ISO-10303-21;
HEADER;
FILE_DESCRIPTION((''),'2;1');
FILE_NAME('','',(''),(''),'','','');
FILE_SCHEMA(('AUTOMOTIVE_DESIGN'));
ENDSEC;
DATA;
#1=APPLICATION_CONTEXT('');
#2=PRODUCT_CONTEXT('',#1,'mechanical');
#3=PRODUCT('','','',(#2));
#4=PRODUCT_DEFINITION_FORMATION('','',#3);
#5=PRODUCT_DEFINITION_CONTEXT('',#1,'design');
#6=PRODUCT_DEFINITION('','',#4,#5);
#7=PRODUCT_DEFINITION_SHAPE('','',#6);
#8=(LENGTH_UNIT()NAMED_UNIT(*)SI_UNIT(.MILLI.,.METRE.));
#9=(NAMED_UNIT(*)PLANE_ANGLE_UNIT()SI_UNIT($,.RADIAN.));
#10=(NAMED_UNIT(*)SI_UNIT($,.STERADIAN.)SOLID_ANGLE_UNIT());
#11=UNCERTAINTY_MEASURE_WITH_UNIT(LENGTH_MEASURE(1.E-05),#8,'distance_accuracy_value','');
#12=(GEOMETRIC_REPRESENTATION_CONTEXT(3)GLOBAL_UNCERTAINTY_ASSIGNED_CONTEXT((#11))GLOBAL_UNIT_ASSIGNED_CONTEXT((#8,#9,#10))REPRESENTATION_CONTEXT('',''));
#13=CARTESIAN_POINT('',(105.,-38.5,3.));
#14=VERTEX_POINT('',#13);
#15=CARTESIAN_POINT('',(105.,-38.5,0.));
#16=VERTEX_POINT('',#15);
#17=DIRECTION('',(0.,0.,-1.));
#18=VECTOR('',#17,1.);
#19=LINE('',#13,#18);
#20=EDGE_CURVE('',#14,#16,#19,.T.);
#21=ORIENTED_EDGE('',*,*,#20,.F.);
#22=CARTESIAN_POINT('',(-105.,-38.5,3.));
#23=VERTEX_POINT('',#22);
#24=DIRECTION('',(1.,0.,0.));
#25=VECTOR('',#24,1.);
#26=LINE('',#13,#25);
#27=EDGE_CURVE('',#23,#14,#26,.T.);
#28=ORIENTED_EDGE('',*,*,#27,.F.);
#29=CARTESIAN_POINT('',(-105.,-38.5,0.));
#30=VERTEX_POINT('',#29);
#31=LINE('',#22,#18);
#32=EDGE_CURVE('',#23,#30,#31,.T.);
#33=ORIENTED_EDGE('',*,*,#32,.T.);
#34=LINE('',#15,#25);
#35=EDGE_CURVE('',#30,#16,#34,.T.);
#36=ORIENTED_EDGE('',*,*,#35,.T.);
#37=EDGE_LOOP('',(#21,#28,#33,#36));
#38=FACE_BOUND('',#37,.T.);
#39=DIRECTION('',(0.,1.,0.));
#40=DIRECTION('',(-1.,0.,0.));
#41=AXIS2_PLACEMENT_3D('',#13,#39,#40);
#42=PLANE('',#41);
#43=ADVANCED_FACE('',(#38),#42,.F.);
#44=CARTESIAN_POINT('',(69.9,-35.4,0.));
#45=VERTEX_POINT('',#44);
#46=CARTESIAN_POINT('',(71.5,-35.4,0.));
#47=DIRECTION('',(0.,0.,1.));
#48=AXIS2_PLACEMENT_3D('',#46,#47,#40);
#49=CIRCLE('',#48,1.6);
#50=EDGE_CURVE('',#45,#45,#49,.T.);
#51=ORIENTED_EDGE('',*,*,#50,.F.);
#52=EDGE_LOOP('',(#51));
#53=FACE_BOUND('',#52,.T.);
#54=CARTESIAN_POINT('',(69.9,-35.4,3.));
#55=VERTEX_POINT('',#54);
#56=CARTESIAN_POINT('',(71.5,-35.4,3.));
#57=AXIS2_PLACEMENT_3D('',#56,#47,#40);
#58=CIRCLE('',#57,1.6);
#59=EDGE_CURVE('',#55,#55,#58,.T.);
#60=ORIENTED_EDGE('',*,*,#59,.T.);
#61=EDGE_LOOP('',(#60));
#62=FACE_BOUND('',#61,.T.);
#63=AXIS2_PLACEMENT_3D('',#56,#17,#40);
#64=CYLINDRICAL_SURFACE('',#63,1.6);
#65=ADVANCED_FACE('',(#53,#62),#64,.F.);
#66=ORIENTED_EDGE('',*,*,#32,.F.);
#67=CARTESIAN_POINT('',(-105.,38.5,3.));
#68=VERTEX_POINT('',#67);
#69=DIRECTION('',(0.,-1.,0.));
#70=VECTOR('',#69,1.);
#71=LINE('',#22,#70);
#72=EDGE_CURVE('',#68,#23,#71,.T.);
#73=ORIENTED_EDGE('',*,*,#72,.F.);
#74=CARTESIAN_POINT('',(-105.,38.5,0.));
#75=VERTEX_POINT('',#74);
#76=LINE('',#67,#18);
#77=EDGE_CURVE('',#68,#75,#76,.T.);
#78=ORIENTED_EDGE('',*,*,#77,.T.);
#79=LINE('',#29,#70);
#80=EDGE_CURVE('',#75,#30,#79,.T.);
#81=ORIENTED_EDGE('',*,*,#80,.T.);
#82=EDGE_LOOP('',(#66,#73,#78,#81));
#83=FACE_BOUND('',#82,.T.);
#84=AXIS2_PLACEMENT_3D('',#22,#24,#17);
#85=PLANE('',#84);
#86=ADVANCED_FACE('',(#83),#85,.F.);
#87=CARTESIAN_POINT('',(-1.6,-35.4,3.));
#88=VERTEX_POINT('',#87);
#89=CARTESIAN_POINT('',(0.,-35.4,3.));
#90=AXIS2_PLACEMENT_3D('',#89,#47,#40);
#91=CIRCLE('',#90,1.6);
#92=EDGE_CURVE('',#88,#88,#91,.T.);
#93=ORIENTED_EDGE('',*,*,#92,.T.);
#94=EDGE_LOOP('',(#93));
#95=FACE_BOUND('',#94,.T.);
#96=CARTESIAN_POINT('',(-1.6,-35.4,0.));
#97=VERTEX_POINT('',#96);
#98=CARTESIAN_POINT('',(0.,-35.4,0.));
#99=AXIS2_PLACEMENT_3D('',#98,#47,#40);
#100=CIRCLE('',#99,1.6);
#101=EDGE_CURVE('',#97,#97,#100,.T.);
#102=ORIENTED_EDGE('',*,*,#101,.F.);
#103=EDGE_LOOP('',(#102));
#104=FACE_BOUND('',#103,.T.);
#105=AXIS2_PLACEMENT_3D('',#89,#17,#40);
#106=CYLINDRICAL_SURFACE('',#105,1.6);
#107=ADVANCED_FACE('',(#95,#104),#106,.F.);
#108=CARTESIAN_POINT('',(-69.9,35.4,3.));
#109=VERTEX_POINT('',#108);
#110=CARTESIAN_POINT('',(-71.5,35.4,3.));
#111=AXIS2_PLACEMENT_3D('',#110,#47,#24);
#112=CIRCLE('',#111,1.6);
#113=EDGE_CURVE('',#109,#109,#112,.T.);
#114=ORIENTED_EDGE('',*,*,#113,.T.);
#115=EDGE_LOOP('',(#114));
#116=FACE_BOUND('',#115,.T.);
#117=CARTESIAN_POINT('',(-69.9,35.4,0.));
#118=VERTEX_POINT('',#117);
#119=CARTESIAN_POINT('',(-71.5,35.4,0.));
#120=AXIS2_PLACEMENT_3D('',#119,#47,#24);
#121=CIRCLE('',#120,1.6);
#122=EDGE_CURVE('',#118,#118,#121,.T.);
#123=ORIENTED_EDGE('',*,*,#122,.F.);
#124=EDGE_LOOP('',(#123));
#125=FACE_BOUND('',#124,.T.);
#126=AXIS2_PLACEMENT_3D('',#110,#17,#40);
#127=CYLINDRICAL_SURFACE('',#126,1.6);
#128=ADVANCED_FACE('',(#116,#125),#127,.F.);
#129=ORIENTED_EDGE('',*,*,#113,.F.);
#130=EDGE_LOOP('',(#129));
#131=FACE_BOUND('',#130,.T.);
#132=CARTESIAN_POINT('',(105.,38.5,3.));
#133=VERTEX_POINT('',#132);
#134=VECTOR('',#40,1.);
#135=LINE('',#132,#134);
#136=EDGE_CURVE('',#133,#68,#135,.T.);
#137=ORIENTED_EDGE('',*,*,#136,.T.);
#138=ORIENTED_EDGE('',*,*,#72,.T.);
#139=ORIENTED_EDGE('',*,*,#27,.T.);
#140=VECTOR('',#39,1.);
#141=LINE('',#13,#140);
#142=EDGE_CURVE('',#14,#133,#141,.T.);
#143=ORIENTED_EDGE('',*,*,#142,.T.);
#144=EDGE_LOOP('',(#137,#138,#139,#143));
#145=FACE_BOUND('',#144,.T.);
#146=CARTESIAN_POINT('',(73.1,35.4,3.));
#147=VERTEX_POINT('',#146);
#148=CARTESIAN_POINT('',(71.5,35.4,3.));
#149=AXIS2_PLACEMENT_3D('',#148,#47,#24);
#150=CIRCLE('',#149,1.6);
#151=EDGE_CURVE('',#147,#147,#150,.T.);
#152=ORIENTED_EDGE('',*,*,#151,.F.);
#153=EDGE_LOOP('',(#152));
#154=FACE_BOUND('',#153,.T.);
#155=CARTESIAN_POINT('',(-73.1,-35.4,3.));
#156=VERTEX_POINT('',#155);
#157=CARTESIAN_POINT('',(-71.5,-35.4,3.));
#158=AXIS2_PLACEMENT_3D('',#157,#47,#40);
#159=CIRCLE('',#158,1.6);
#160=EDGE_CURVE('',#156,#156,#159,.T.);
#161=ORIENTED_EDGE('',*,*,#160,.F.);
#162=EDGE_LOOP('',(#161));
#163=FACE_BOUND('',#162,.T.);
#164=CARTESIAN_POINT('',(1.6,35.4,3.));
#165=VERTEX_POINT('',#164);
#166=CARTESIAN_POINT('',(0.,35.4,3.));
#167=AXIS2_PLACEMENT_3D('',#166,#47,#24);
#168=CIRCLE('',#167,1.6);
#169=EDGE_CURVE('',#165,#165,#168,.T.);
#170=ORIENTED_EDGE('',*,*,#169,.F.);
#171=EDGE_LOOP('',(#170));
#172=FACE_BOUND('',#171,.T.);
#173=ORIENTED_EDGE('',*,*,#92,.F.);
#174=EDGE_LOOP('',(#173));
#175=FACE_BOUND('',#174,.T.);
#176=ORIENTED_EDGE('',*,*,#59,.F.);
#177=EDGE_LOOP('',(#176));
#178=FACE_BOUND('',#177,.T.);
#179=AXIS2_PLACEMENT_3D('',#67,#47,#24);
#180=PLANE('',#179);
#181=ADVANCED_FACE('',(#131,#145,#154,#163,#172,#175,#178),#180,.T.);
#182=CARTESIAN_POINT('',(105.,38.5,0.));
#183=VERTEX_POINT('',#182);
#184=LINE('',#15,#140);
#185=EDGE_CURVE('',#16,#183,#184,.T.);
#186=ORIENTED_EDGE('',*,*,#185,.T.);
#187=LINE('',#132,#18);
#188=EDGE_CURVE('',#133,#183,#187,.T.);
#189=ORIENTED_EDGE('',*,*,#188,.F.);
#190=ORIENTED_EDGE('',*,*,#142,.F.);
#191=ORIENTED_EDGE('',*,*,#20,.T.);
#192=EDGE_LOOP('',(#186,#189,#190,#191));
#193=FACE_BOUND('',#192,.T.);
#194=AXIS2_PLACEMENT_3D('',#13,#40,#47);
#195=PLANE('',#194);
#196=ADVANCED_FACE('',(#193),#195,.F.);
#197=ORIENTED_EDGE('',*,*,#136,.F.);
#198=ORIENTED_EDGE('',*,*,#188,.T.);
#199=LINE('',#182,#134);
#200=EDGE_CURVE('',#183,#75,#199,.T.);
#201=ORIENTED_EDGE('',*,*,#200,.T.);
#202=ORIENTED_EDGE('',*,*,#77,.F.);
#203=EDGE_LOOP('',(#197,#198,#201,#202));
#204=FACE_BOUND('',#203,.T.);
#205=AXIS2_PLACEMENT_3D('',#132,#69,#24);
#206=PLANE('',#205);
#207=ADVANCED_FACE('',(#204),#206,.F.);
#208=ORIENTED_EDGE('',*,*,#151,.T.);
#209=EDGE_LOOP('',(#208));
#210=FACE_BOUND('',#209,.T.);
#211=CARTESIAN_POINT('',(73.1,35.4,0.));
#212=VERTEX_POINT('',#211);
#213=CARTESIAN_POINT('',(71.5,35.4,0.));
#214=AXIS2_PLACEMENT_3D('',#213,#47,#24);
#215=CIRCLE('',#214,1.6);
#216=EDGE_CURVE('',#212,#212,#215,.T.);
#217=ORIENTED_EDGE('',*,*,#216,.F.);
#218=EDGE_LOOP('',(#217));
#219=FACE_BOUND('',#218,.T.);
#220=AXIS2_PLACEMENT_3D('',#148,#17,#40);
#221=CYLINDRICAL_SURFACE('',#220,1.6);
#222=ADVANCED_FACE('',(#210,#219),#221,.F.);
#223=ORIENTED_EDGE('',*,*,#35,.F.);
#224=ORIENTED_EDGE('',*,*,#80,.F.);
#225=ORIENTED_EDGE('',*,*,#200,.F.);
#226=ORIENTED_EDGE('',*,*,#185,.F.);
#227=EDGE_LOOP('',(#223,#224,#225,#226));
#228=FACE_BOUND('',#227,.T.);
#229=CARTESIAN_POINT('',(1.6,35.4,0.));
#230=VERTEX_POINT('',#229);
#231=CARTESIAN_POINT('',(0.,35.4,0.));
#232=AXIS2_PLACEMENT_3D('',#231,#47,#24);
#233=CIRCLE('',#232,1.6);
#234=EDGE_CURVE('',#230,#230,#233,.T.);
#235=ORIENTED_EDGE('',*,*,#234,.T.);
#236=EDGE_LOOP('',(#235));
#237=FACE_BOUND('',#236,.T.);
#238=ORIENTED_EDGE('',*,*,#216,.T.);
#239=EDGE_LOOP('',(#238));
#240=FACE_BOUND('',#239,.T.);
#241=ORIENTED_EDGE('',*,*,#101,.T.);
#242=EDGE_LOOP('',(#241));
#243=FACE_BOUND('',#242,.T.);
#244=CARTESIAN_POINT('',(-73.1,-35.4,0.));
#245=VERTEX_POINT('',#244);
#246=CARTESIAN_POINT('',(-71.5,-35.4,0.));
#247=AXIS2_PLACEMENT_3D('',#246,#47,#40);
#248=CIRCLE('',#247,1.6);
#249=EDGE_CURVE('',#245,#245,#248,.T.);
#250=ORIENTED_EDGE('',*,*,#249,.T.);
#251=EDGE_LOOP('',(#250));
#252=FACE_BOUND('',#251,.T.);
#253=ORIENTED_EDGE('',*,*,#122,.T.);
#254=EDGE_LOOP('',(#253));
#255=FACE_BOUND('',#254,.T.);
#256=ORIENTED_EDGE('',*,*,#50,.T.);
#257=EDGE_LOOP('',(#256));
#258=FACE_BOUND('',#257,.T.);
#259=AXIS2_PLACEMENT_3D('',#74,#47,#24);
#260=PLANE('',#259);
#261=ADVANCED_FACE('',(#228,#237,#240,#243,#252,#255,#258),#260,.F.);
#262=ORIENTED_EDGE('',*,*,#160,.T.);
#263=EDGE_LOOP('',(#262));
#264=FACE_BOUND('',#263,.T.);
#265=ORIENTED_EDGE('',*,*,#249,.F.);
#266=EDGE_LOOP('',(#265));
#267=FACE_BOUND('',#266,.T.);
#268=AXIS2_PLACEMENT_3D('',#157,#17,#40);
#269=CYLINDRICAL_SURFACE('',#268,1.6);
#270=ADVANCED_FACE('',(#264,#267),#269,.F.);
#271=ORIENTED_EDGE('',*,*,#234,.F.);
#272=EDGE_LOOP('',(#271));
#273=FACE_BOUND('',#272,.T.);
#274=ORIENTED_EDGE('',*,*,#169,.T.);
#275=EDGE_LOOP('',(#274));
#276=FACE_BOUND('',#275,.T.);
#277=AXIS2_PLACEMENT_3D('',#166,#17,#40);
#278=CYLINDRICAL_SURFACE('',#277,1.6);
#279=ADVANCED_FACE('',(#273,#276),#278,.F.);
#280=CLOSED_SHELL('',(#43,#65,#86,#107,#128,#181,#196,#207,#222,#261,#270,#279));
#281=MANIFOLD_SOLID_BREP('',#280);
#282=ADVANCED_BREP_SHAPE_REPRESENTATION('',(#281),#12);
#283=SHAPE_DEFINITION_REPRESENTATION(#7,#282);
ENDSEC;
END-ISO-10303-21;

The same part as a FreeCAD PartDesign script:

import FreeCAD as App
import Part
import Sketcher

V = App.Vector

doc = App.newDocument("Part")
body = doc.addObject("PartDesign::Body", "Body")

# Sketch on XY plane
sketch1 = body.newObject("Sketcher::SketchObject", "Sketch")
sketch1.AttachmentSupport = (doc.getObject("XY_Plane"), [""])
sketch1.MapMode = "FlatFace"
sketch1.addGeometry(Part.LineSegment(V(-105, 38.5, 0), V(-105, -38.5, 0)), False)
sketch1.addGeometry(Part.LineSegment(V(-105, -38.5, 0), V(105, -38.5, 0)), False)
sketch1.addGeometry(Part.LineSegment(V(105, -38.5, 0), V(105, 38.5, 0)), False)
sketch1.addGeometry(Part.LineSegment(V(105, 38.5, 0), V(-105, 38.5, 0)), False)
sketch1.addGeometry(Part.Circle(V(-71.5, -35.4, 0), V(0, 0, 1), 1.6), False)
sketch1.addGeometry(Part.Circle(V(0, -35.4, 0), V(0, 0, 1), 1.6), False)
sketch1.addGeometry(Part.Circle(V(71.5, -35.4, 0), V(0, 0, 1), 1.6), False)
sketch1.addGeometry(Part.Circle(V(-71.5, 35.4, 0), V(0, 0, 1), 1.6), False)
sketch1.addGeometry(Part.Circle(V(0, 35.4, 0), V(0, 0, 1), 1.6), False)
sketch1.addGeometry(Part.Circle(V(71.5, 35.4, 0), V(0, 0, 1), 1.6), False)
sketch1.addConstraint(Sketcher.Constraint("Coincident", 0, 2, 1, 1))
sketch1.addConstraint(Sketcher.Constraint("Coincident", 1, 2, 2, 1))
sketch1.addConstraint(Sketcher.Constraint("Coincident", 2, 2, 3, 1))
sketch1.addConstraint(Sketcher.Constraint("Coincident", 3, 2, 0, 1))
sketch1.addConstraint(Sketcher.Constraint("Vertical", 0))
sketch1.addConstraint(Sketcher.Constraint("Horizontal", 1))
sketch1.addConstraint(Sketcher.Constraint("Vertical", 2))
sketch1.addConstraint(Sketcher.Constraint("Horizontal", 3))
sketch1.addConstraint(Sketcher.Constraint("Equal", 4, 5))
sketch1.addConstraint(Sketcher.Constraint("Equal", 5, 6))
sketch1.addConstraint(Sketcher.Constraint("Equal", 6, 7))
sketch1.addConstraint(Sketcher.Constraint("Equal", 7, 8))
sketch1.addConstraint(Sketcher.Constraint("Equal", 8, 9))
sketch1.addConstraint(Sketcher.Constraint("Symmetric", 6, 3, 7, 3, -1, 1))
sketch1.addConstraint(Sketcher.Constraint("Symmetric", 5, 3, 8, 3, -1, 1))
sketch1.addConstraint(Sketcher.Constraint("Symmetric", 4, 3, 9, 3, -1, 1))
sketch1.addConstraint(Sketcher.Constraint("Symmetric", 0, 2, 2, 2, -1, 1))
sketch1.addConstraint(Sketcher.Constraint("Symmetric", 4, 3, 6, 3, -2))
sketch1.addConstraint(Sketcher.Constraint("PointOnObject", 5, 3, -2))
sketch1.addConstraint(Sketcher.Constraint("Horizontal", 4, 3, 5, 3))
sketch1.addConstraint(Sketcher.Constraint("Diameter", 4, 3.2))
sketch1.addConstraint(Sketcher.Constraint("DistanceX", 1, 1, 1, 2, 210.0))
sketch1.addConstraint(Sketcher.Constraint("DistanceY", 0, 2, 0, 1, 77.0))
sketch1.addConstraint(Sketcher.Constraint("DistanceX", 4, 3, 6, 3, 143.0))
sketch1.addConstraint(Sketcher.Constraint("DistanceY", 4, 3, -1, 1, 35.4))
pad1 = body.newObject("PartDesign::Pad", "Pad")
pad1.Profile = sketch1
pad1.Length = 3

doc.recompute()
